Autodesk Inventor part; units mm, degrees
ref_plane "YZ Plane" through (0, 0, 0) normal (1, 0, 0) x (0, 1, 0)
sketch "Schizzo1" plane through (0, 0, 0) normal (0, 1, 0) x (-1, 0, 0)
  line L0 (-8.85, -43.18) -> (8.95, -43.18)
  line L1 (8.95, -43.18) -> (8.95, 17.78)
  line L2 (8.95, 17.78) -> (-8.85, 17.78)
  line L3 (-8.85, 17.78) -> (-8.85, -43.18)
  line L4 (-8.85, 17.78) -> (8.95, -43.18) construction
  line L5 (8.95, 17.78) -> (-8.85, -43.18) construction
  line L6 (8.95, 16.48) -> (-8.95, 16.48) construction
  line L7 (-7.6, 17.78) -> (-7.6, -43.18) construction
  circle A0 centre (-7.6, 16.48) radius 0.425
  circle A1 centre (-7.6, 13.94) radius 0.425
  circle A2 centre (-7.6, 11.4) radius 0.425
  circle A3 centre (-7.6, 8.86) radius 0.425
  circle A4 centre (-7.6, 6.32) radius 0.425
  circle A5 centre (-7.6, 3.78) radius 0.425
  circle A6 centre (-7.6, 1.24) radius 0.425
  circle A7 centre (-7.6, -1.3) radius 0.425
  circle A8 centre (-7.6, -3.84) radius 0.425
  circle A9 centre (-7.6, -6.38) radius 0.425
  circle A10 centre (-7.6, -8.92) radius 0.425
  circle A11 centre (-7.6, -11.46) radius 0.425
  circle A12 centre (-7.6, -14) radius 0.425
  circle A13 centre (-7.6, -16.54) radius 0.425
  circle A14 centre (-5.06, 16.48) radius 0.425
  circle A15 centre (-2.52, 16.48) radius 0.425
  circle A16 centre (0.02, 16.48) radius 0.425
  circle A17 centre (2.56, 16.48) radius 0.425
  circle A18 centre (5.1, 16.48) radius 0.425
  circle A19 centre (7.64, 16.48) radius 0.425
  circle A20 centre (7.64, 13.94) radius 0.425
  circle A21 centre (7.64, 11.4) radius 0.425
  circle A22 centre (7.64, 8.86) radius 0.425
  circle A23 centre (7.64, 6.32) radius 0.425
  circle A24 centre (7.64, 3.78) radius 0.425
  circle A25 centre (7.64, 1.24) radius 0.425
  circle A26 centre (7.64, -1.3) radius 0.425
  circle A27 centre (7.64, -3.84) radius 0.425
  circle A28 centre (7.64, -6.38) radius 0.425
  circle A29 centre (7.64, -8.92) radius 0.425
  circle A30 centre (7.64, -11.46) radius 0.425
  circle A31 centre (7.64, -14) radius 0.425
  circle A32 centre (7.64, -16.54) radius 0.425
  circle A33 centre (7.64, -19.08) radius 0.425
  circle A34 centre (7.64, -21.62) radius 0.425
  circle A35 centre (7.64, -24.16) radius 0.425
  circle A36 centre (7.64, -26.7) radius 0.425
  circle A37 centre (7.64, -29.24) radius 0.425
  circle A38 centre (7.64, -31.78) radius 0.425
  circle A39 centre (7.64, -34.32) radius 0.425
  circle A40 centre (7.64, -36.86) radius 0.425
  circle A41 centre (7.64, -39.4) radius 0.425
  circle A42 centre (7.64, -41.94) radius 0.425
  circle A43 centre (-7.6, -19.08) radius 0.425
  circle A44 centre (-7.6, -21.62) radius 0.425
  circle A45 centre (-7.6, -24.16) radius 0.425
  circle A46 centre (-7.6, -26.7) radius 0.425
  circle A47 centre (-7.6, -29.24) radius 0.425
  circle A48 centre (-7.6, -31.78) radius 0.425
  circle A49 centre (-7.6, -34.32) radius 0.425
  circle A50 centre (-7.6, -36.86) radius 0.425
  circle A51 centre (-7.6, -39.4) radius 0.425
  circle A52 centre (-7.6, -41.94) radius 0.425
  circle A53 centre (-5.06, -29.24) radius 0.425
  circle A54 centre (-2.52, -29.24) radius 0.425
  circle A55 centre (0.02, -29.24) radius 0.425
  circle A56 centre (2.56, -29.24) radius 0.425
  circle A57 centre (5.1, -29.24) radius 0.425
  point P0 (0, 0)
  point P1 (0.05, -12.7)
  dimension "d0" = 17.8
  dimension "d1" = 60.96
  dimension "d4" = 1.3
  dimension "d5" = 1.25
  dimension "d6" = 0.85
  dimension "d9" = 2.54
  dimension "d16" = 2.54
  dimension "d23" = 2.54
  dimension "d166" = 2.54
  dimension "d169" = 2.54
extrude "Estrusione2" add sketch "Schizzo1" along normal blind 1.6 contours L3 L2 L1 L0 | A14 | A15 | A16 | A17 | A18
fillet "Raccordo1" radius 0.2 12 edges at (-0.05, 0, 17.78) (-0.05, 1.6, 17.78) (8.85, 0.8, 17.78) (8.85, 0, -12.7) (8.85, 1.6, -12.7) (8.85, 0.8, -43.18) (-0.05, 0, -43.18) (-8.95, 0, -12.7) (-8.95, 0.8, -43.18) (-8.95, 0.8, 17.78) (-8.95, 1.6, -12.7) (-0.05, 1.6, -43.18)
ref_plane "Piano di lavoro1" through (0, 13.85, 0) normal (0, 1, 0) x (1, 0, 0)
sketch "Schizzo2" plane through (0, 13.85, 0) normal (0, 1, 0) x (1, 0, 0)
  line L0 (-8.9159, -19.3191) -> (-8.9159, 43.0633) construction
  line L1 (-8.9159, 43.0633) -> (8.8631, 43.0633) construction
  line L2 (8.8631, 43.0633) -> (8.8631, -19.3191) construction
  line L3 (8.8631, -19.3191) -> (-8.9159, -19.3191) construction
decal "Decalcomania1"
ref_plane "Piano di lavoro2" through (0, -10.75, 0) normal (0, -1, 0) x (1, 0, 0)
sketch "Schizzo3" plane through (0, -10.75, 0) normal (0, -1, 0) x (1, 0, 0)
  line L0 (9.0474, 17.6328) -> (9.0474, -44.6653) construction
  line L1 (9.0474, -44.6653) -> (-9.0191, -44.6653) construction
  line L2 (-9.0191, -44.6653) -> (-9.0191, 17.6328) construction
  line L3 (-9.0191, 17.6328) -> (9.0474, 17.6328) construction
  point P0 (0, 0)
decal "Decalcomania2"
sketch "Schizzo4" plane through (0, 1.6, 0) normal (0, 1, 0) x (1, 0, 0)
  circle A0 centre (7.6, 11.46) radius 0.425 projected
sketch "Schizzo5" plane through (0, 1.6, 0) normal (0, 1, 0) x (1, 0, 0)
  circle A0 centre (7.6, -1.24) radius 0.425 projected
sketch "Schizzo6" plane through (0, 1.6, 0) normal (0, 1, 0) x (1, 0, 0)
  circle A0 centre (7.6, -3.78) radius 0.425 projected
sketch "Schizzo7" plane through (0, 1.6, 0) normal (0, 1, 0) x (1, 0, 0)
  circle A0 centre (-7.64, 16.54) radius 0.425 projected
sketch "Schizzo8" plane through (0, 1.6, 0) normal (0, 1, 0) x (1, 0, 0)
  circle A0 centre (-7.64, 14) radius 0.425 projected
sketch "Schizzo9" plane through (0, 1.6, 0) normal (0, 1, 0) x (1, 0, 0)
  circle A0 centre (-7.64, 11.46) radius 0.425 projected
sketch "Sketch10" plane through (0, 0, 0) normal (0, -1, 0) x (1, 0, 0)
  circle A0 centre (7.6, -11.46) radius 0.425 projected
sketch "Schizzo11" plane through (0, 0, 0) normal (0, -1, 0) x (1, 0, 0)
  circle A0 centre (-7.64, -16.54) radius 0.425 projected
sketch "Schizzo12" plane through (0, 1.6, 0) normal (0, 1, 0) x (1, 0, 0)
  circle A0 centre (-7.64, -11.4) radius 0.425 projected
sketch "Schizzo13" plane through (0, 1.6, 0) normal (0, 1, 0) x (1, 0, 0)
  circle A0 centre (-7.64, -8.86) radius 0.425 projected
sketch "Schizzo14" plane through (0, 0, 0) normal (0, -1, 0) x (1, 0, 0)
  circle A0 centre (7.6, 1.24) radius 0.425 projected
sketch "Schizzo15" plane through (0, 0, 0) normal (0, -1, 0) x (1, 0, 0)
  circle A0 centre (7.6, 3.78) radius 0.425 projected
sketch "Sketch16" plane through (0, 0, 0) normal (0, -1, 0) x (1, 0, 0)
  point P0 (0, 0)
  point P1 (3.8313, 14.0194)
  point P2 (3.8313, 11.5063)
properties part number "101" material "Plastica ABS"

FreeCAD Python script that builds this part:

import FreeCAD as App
import Part
import Sketcher


def edges_at(feature, points):
    """Names of the edges that pass closest to the given points."""
    edges = feature.Shape.Edges
    near = lambda p: min(range(len(edges)), key=lambda i: edges[i].distToShape(Part.Vertex(*p))[0])
    return sorted({f"Edge{near(p) + 1}" for p in points})

doc = App.newDocument("Part")
body = doc.addObject("PartDesign::Body", "Body")

# Sketch on XZ plane
sketch1 = body.newObject("Sketcher::SketchObject", "Sketch")
sketch1.AttachmentSupport = (doc.getObject("XZ_Plane"), [""])
sketch1.MapMode = "FlatFace"
sketch1.addGeometry(Part.LineSegment(App.Vector(8.85, 17.78, 0), App.Vector(8.85, -43.18, 0)), False)
sketch1.addGeometry(Part.LineSegment(App.Vector(8.85, -43.18, 0), App.Vector(-8.95, -43.18, 0)), False)
sketch1.addGeometry(Part.LineSegment(App.Vector(-8.95, -43.18, 0), App.Vector(-8.95, 17.78, 0)), False)
sketch1.addGeometry(Part.LineSegment(App.Vector(-8.95, 17.78, 0), App.Vector(8.85, 17.78, 0)), False)
sketch1.addGeometry(Part.Circle(App.Vector(7.6, -41.94, 0), App.Vector(0, 0, 1), 0.42), False)
sketch1.addGeometry(Part.Circle(App.Vector(7.6, -39.4, 0), App.Vector(0, 0, 1), 0.42), False)
sketch1.addGeometry(Part.Circle(App.Vector(7.6, -36.86, 0), App.Vector(0, 0, 1), 0.42), False)
sketch1.addGeometry(Part.Circle(App.Vector(7.6, -34.32, 0), App.Vector(0, 0, 1), 0.42), False)
sketch1.addGeometry(Part.Circle(App.Vector(7.6, -31.78, 0), App.Vector(0, 0, 1), 0.42), False)
sketch1.addGeometry(Part.Circle(App.Vector(7.6, -29.24, 0), App.Vector(0, 0, 1), 0.42), False)
sketch1.addGeometry(Part.Circle(App.Vector(5.06, -29.24, 0), App.Vector(0, 0, 1), 0.42), False)
sketch1.addGeometry(Part.Circle(App.Vector(2.52, -29.24, 0), App.Vector(0, 0, 1), 0.42), False)
sketch1.addGeometry(Part.Circle(App.Vector(-0.02, -29.24, 0), App.Vector(0, 0, 1), 0.42), False)
sketch1.addGeometry(Part.Circle(App.Vector(7.6, -26.7, 0), App.Vector(0, 0, 1), 0.42), False)
sketch1.addGeometry(Part.Circle(App.Vector(7.6, -24.16, 0), App.Vector(0, 0, 1), 0.42), False)
sketch1.addGeometry(Part.Circle(App.Vector(7.6, -21.62, 0), App.Vector(0, 0, 1), 0.42), False)
sketch1.addGeometry(Part.Circle(App.Vector(7.6, -19.08, 0), App.Vector(0, 0, 1), 0.42), False)
sketch1.addGeometry(Part.Circle(App.Vector(7.6, -16.54, 0), App.Vector(0, 0, 1), 0.42), False)
sketch1.addGeometry(Part.Circle(App.Vector(7.6, -14, 0), App.Vector(0, 0, 1), 0.42), False)
sketch1.addGeometry(Part.Circle(App.Vector(-2.56, -29.24, 0), App.Vector(0, 0, 1), 0.42), False)
sketch1.addGeometry(Part.Circle(App.Vector(-7.64, -41.94, 0), App.Vector(0, 0, 1), 0.42), False)
sketch1.addGeometry(Part.Circle(App.Vector(-7.64, -39.4, 0), App.Vector(0, 0, 1), 0.42), False)
sketch1.addGeometry(Part.Circle(App.Vector(-7.64, -36.86, 0), App.Vector(0, 0, 1), 0.42), False)
sketch1.addGeometry(Part.Circle(App.Vector(-5.1, -29.24, 0), App.Vector(0, 0, 1), 0.42), False)
sketch1.addGeometry(Part.Circle(App.Vector(-7.64, -34.32, 0), App.Vector(0, 0, 1), 0.42), False)
sketch1.addGeometry(Part.Circle(App.Vector(-7.64, -31.78, 0), App.Vector(0, 0, 1), 0.42), False)
sketch1.addGeometry(Part.Circle(App.Vector(-7.64, -29.24, 0), App.Vector(0, 0, 1), 0.42), False)
sketch1.addGeometry(Part.Circle(App.Vector(-7.64, -26.7, 0), App.Vector(0, 0, 1), 0.42), False)
sketch1.addGeometry(Part.Circle(App.Vector(-7.64, -24.16, 0), App.Vector(0, 0, 1), 0.42), False)
sketch1.addGeometry(Part.Circle(App.Vector(-7.64, -21.62, 0), App.Vector(0, 0, 1), 0.42), False)
sketch1.addGeometry(Part.Circle(App.Vector(-7.64, -19.08, 0), App.Vector(0, 0, 1), 0.42), False)
sketch1.addGeometry(Part.Circle(App.Vector(-7.64, -16.54, 0), App.Vector(0, 0, 1), 0.42), False)
sketch1.addGeometry(Part.Circle(App.Vector(-7.64, -14, 0), App.Vector(0, 0, 1), 0.42), False)
sketch1.addGeometry(Part.Circle(App.Vector(7.6, -11.46, 0), App.Vector(0, 0, 1), 0.42), False)
sketch1.addGeometry(Part.Circle(App.Vector(7.6, -8.92, 0), App.Vector(0, 0, 1), 0.42), False)
sketch1.addGeometry(Part.Circle(App.Vector(7.6, -6.38, 0), App.Vector(0, 0, 1), 0.42), False)
sketch1.addGeometry(Part.Circle(App.Vector(7.6, -3.84, 0), App.Vector(0, 0, 1), 0.42), False)
sketch1.addGeometry(Part.Circle(App.Vector(7.6, -1.3, 0), App.Vector(0, 0, 1), 0.42), False)
sketch1.addGeometry(Part.Circle(App.Vector(7.6, 1.24, 0), App.Vector(0, 0, 1), 0.42), False)
sketch1.addGeometry(Part.Circle(App.Vector(7.6, 3.78, 0), App.Vector(0, 0, 1), 0.42), False)
sketch1.addGeometry(Part.Circle(App.Vector(7.6, 6.32, 0), App.Vector(0, 0, 1), 0.42), False)
sketch1.addGeometry(Part.Circle(App.Vector(7.6, 8.86, 0), App.Vector(0, 0, 1), 0.42), False)
sketch1.addGeometry(Part.Circle(App.Vector(7.6, 11.4, 0), App.Vector(0, 0, 1), 0.42), False)
sketch1.addGeometry(Part.Circle(App.Vector(7.6, 13.94, 0), App.Vector(0, 0, 1), 0.42), False)
sketch1.addGeometry(Part.Circle(App.Vector(7.6, 16.48, 0), App.Vector(0, 0, 1), 0.42), False)
sketch1.addGeometry(Part.Circle(App.Vector(-7.64, -11.46, 0), App.Vector(0, 0, 1), 0.42), False)
sketch1.addGeometry(Part.Circle(App.Vector(-7.64, -8.92, 0), App.Vector(0, 0, 1), 0.42), False)
sketch1.addGeometry(Part.Circle(App.Vector(-7.64, -6.38, 0), App.Vector(0, 0, 1), 0.42), False)
sketch1.addGeometry(Part.Circle(App.Vector(-7.64, -3.84, 0), App.Vector(0, 0, 1), 0.42), False)
sketch1.addGeometry(Part.Circle(App.Vector(-7.64, -1.3, 0), App.Vector(0, 0, 1), 0.42), False)
sketch1.addGeometry(Part.Circle(App.Vector(-7.64, 1.24, 0), App.Vector(0, 0, 1), 0.42), False)
sketch1.addGeometry(Part.Circle(App.Vector(-7.64, 3.78, 0), App.Vector(0, 0, 1), 0.42), False)
sketch1.addGeometry(Part.Circle(App.Vector(-7.64, 6.32, 0), App.Vector(0, 0, 1), 0.42), False)
sketch1.addGeometry(Part.Circle(App.Vector(-7.64, 8.86, 0), App.Vector(0, 0, 1), 0.42), False)
sketch1.addGeometry(Part.Circle(App.Vector(-7.64, 11.4, 0), App.Vector(0, 0, 1), 0.42), False)
sketch1.addGeometry(Part.Circle(App.Vector(-7.64, 13.94, 0), App.Vector(0, 0, 1), 0.42), False)
sketch1.addGeometry(Part.Circle(App.Vector(-7.64, 16.48, 0), App.Vector(0, 0, 1), 0.42), False)
sketch1.addConstraint(Sketcher.Constraint("Coincident", 0, 2, 1, 1))
sketch1.addConstraint(Sketcher.Constraint("Coincident", 1, 2, 2, 1))
sketch1.addConstraint(Sketcher.Constraint("Coincident", 2, 2, 3, 1))
sketch1.addConstraint(Sketcher.Constraint("Coincident", 3, 2, 0, 1))
sketch1.addConstraint(Sketcher.Constraint("Vertical", 0))
sketch1.addConstraint(Sketcher.Constraint("Horizontal", 1))
sketch1.addConstraint(Sketcher.Constraint("Vertical", 2))
sketch1.addConstraint(Sketcher.Constraint("Horizontal", 3))
sketch1.addConstraint(Sketcher.Constraint("Equal", 4, 5))
sketch1.addConstraint(Sketcher.Constraint("Equal", 5, 6))
sketch1.addConstraint(Sketcher.Constraint("Equal", 6, 7))
sketch1.addConstraint(Sketcher.Constraint("Equal", 7, 8))
sketch1.addConstraint(Sketcher.Constraint("Equal", 8, 9))
sketch1.addConstraint(Sketcher.Constraint("Equal", 9, 10))
sketch1.addConstraint(Sketcher.Constraint("Equal", 10, 11))
sketch1.addConstraint(Sketcher.Constraint("Equal", 11, 12))
sketch1.addConstraint(Sketcher.Constraint("Equal", 12, 13))
sketch1.addConstraint(Sketcher.Constraint("Equal", 13, 14))
sketch1.addConstraint(Sketcher.Constraint("Equal", 14, 15))
sketch1.addConstraint(Sketcher.Constraint("Equal", 15, 16))
sketch1.addConstraint(Sketcher.Constraint("Equal", 16, 17))
sketch1.addConstraint(Sketcher.Constraint("Equal", 17, 18))
sketch1.addConstraint(Sketcher.Constraint("Equal", 18, 19))
sketch1.addConstraint(Sketcher.Constraint("Equal", 19, 20))
sketch1.addConstraint(Sketcher.Constraint("Equal", 20, 21))
sketch1.addConstraint(Sketcher.Constraint("Equal", 21, 22))
sketch1.addConstraint(Sketcher.Constraint("Equal", 22, 23))
sketch1.addConstraint(Sketcher.Constraint("Equal", 23, 24))
sketch1.addConstraint(Sketcher.Constraint("Equal", 24, 25))
sketch1.addConstraint(Sketcher.Constraint("Equal", 25, 26))
sketch1.addConstraint(Sketcher.Constraint("Equal", 26, 27))
sketch1.addConstraint(Sketcher.Constraint("Equal", 27, 28))
sketch1.addConstraint(Sketcher.Constraint("Equal", 28, 29))
sketch1.addConstraint(Sketcher.Constraint("Equal", 29, 30))
sketch1.addConstraint(Sketcher.Constraint("Equal", 30, 31))
sketch1.addConstraint(Sketcher.Constraint("Equal", 31, 32))
sketch1.addConstraint(Sketcher.Constraint("Equal", 32, 33))
sketch1.addConstraint(Sketcher.Constraint("Equal", 33, 34))
sketch1.addConstraint(Sketcher.Constraint("Equal", 34, 35))
sketch1.addConstraint(Sketcher.Constraint("Equal", 35, 36))
sketch1.addConstraint(Sketcher.Constraint("Equal", 36, 37))
sketch1.addConstraint(Sketcher.Constraint("Equal", 37, 38))
sketch1.addConstraint(Sketcher.Constraint("Equal", 38, 39))
sketch1.addConstraint(Sketcher.Constraint("Equal", 39, 40))
sketch1.addConstraint(Sketcher.Constraint("Equal", 40, 41))
sketch1.addConstraint(Sketcher.Constraint("Equal", 41, 42))
sketch1.addConstraint(Sketcher.Constraint("Equal", 42, 43))
sketch1.addConstraint(Sketcher.Constraint("Equal", 43, 44))
sketch1.addConstraint(Sketcher.Constraint("Equal", 44, 45))
sketch1.addConstraint(Sketcher.Constraint("Equal", 45, 46))
sketch1.addConstraint(Sketcher.Constraint("Equal", 46, 47))
sketch1.addConstraint(Sketcher.Constraint("Equal", 47, 48))
sketch1.addConstraint(Sketcher.Constraint("Equal", 48, 49))
sketch1.addConstraint(Sketcher.Constraint("Equal", 49, 50))
sketch1.addConstraint(Sketcher.Constraint("Equal", 50, 51))
sketch1.addConstraint(Sketcher.Constraint("Equal", 51, 52))
sketch1.addConstraint(Sketcher.Constraint("Equal", 52, 53))
sketch1.addConstraint(Sketcher.Constraint("Equal", 53, 54))
sketch1.addConstraint(Sketcher.Constraint("Equal", 54, 55))
sketch1.addConstraint(Sketcher.Constraint("Equal", 55, 56))
sketch1.addConstraint(Sketcher.Constraint("Horizontal", 9, 3, 10, 3))
sketch1.addConstraint(Sketcher.Constraint("Horizontal", 10, 3, 11, 3))
sketch1.addConstraint(Sketcher.Constraint("Horizontal", 11, 3, 12, 3))
sketch1.addConstraint(Sketcher.Constraint("Horizontal", 12, 3, 19, 3))
sketch1.addConstraint(Sketcher.Constraint("Horizontal", 4, 3, 20, 3))
sketch1.addConstraint(Sketcher.Constraint("Horizontal", 5, 3, 21, 3))
sketch1.addConstraint(Sketcher.Constraint("Horizontal", 6, 3, 22, 3))
sketch1.addConstraint(Sketcher.Constraint("Horizontal", 19, 3, 23, 3))
sketch1.addConstraint(Sketcher.Constraint("Horizontal", 7, 3, 24, 3))
sketch1.addConstraint(Sketcher.Constraint("Horizontal", 8, 3, 25, 3))
sketch1.addConstraint(Sketcher.Constraint("Horizontal", 23, 3, 26, 3))
sketch1.addConstraint(Sketcher.Constraint("Horizontal", 13, 3, 27, 3))
sketch1.addConstraint(Sketcher.Constraint("Horizontal", 14, 3, 28, 3))
sketch1.addConstraint(Sketcher.Constraint("Horizontal", 15, 3, 29, 3))
sketch1.addConstraint(Sketcher.Constraint("Horizontal", 16, 3, 30, 3))
sketch1.addConstraint(Sketcher.Constraint("Horizontal", 17, 3, 31, 3))
sketch1.addConstraint(Sketcher.Constraint("Horizontal", 18, 3, 32, 3))
sketch1.addConstraint(Sketcher.Constraint("Horizontal", 33, 3, 45, 3))
sketch1.addConstraint(Sketcher.Constraint("Horizontal", 34, 3, 46, 3))
sketch1.addConstraint(Sketcher.Constraint("Horizontal", 35, 3, 47, 3))
sketch1.addConstraint(Sketcher.Constraint("Horizontal", 36, 3, 48, 3))
sketch1.addConstraint(Sketcher.Constraint("Horizontal", 37, 3, 49, 3))
sketch1.addConstraint(Sketcher.Constraint("Horizontal", 38, 3, 50, 3))
sketch1.addConstraint(Sketcher.Constraint("Horizontal", 39, 3, 51, 3))
sketch1.addConstraint(Sketcher.Constraint("Horizontal", 40, 3, 52, 3))
sketch1.addConstraint(Sketcher.Constraint("Horizontal", 41, 3, 53, 3))
sketch1.addConstraint(Sketcher.Constraint("Horizontal", 42, 3, 54, 3))
sketch1.addConstraint(Sketcher.Constraint("Horizontal", 43, 3, 55, 3))
sketch1.addConstraint(Sketcher.Constraint("Horizontal", 44, 3, 56, 3))
sketch1.addConstraint(Sketcher.Constraint("Vertical", 4, 3, 5, 3))
sketch1.addConstraint(Sketcher.Constraint("Vertical", 5, 3, 6, 3))
sketch1.addConstraint(Sketcher.Constraint("Vertical", 6, 3, 7, 3))
sketch1.addConstraint(Sketcher.Constraint("Vertical", 7, 3, 8, 3))
sketch1.addConstraint(Sketcher.Constraint("Vertical", 8, 3, 9, 3))
sketch1.addConstraint(Sketcher.Constraint("Vertical", 9, 3, 13, 3))
sketch1.addConstraint(Sketcher.Constraint("Vertical", 13, 3, 14, 3))
sketch1.addConstraint(Sketcher.Constraint("Vertical", 14, 3, 15, 3))
sketch1.addConstraint(Sketcher.Constraint("Vertical", 15, 3, 16, 3))
sketch1.addConstraint(Sketcher.Constraint("Vertical", 16, 3, 17, 3))
sketch1.addConstraint(Sketcher.Constraint("Vertical", 17, 3, 18, 3))
sketch1.addConstraint(Sketcher.Constraint("Vertical", 20, 3, 21, 3))
sketch1.addConstraint(Sketcher.Constraint("Vertical", 21, 3, 22, 3))
sketch1.addConstraint(Sketcher.Constraint("Vertical", 22, 3, 24, 3))
sketch1.addConstraint(Sketcher.Constraint("Vertical", 24, 3, 25, 3))
sketch1.addConstraint(Sketcher.Constraint("Vertical", 25, 3, 26, 3))
sketch1.addConstraint(Sketcher.Constraint("Vertical", 26, 3, 27, 3))
sketch1.addConstraint(Sketcher.Constraint("Vertical", 27, 3, 28, 3))
sketch1.addConstraint(Sketcher.Constraint("Vertical", 28, 3, 29, 3))
sketch1.addConstraint(Sketcher.Constraint("Vertical", 29, 3, 30, 3))
sketch1.addConstraint(Sketcher.Constraint("Vertical", 30, 3, 31, 3))
sketch1.addConstraint(Sketcher.Constraint("Vertical", 31, 3, 32, 3))
sketch1.addConstraint(Sketcher.Constraint("Vertical", 18, 3, 33, 3))
sketch1.addConstraint(Sketcher.Constraint("Vertical", 33, 3, 34, 3))
sketch1.addConstraint(Sketcher.Constraint("Vertical", 34, 3, 35, 3))
sketch1.addConstraint(Sketcher.Constraint("Vertical", 35, 3, 36, 3))
sketch1.addConstraint(Sketcher.Constraint("Vertical", 36, 3, 37, 3))
sketch1.addConstraint(Sketcher.Constraint("Vertical", 37, 3, 38, 3))
sketch1.addConstraint(Sketcher.Constraint("Vertical", 38, 3, 39, 3))
sketch1.addConstraint(Sketcher.Constraint("Vertical", 39, 3, 40, 3))
sketch1.addConstraint(Sketcher.Constraint("Vertical", 40, 3, 41, 3))
sketch1.addConstraint(Sketcher.Constraint("Vertical", 41, 3, 42, 3))
sketch1.addConstraint(Sketcher.Constraint("Vertical", 42, 3, 43, 3))
sketch1.addConstraint(Sketcher.Constraint("Vertical", 43, 3, 44, 3))
sketch1.addConstraint(Sketcher.Constraint("Vertical", 32, 3, 45, 3))
sketch1.addConstraint(Sketcher.Constraint("Vertical", 45, 3, 46, 3))
sketch1.addConstraint(Sketcher.Constraint("Vertical", 46, 3, 47, 3))
sketch1.addConstraint(Sketcher.Constraint("Vertical", 47, 3, 48, 3))
sketch1.addConstraint(Sketcher.Constraint("Vertical", 48, 3, 49, 3))
sketch1.addConstraint(Sketcher.Constraint("Vertical", 49, 3, 50, 3))
sketch1.addConstraint(Sketcher.Constraint("Vertical", 50, 3, 51, 3))
sketch1.addConstraint(Sketcher.Constraint("Vertical", 51, 3, 52, 3))
sketch1.addConstraint(Sketcher.Constraint("Vertical", 52, 3, 53, 3))
sketch1.addConstraint(Sketcher.Constraint("Vertical", 53, 3, 54, 3))
sketch1.addConstraint(Sketcher.Constraint("Vertical", 54, 3, 55, 3))
sketch1.addConstraint(Sketcher.Constraint("Vertical", 55, 3, 56, 3))
sketch1.addConstraint(Sketcher.Constraint("Diameter", 4, 0.85))
sketch1.addConstraint(Sketcher.Constraint("DistanceX", 1, 2, 1, 1, 17.8))
sketch1.addConstraint(Sketcher.Constraint("DistanceY", 0, 2, 0, 1, 60.96))
sketch1.addConstraint(Sketcher.Constraint("DistanceY", 37, 3, -1, 1, 1.3))
sketch1.addConstraint(Sketcher.Constraint("DistanceY", 56, 3, 2, 2, 1.3))
sketch1.addConstraint(Sketcher.Constraint("DistanceY", 4, 3, 5, 3, 2.54))
sketch1.addConstraint(Sketcher.Constraint("DistanceY", 5, 3, 6, 3, 2.54))
sketch1.addConstraint(Sketcher.Constraint("DistanceY", 6, 3, 7, 3, 2.54))
sketch1.addConstraint(Sketcher.Constraint("DistanceY", 7, 3, 8, 3, 2.54))
sketch1.addConstraint(Sketcher.Constraint("DistanceY", 8, 3, 9, 3, 2.54))
sketch1.addConstraint(Sketcher.Constraint("DistanceX", 10, 3, 9, 3, 2.54))
sketch1.addConstraint(Sketcher.Constraint("DistanceX", 11, 3, 10, 3, 2.54))
sketch1.addConstraint(Sketcher.Constraint("DistanceX", 12, 3, 11, 3, 2.54))
sketch1.addConstraint(Sketcher.Constraint("DistanceY", 9, 3, 13, 3, 2.54))
sketch1.addConstraint(Sketcher.Constraint("DistanceY", 13, 3, 14, 3, 2.54))
sketch1.addConstraint(Sketcher.Constraint("DistanceY", 14, 3, 15, 3, 2.54))
sketch1.addConstraint(Sketcher.Constraint("DistanceY", 15, 3, 16, 3, 2.54))
sketch1.addConstraint(Sketcher.Constraint("DistanceY", 16, 3, 17, 3, 2.54))
sketch1.addConstraint(Sketcher.Constraint("DistanceY", 17, 3, 18, 3, 2.54))
sketch1.addConstraint(Sketcher.Constraint("DistanceX", 19, 3, 12, 3, 2.54))
sketch1.addConstraint(Sketcher.Constraint("DistanceX", 23, 3, 19, 3, 2.54))
sketch1.addConstraint(Sketcher.Constraint("DistanceX", 22, 3, 23, 3, 2.54))
sketch1.addConstraint(Sketcher.Constraint("DistanceY", 18, 3, 33, 3, 2.54))
sketch1.addConstraint(Sketcher.Constraint("DistanceY", 33, 3, 34, 3, 2.54))
sketch1.addConstraint(Sketcher.Constraint("DistanceY", 34, 3, 35, 3, 2.54))
sketch1.addConstraint(Sketcher.Constraint("DistanceY", 35, 3, 36, 3, 2.54))
sketch1.addConstraint(Sketcher.Constraint("DistanceY", 36, 3, 37, 3, 2.54))
sketch1.addConstraint(Sketcher.Constraint("DistanceY", 37, 3, 38, 3, 2.54))
sketch1.addConstraint(Sketcher.Constraint("DistanceY", 38, 3, 39, 3, 2.54))
sketch1.addConstraint(Sketcher.Constraint("DistanceY", 39, 3, 40, 3, 2.54))
sketch1.addConstraint(Sketcher.Constraint("DistanceY", 40, 3, 41, 3, 2.54))
sketch1.addConstraint(Sketcher.Constraint("DistanceY", 41, 3, 42, 3, 2.54))
sketch1.addConstraint(Sketcher.Constraint("DistanceY", 42, 3, 43, 3, 2.54))
sketch1.addConstraint(Sketcher.Constraint("DistanceY", 43, 3, 44, 3, 2.54))
sketch1.addConstraint(Sketcher.Constraint("DistanceX", 4, 3, 0, 2, 1.25))
sketch1.addConstraint(Sketcher.Constraint("DistanceX", -1, 1, 4, 3, 7.6))
pad1 = body.newObject("PartDesign::Pad", "Pad")
pad1.Profile = sketch1
pad1.Length = 1.6
pad1.Reversed = True
doc.recompute()

fillet = body.newObject("PartDesign::Fillet", "Fillet")
fillet.Base = (pad1, edges_at(pad1, [
    (-0.05, 0, 17.78),
    (-0.05, 1.6, 17.78),
    (8.85, 0.8, 17.78),
    (8.85, 0, -12.7),
    (8.85, 1.6, -12.7),
    (8.85, 0.8, -43.18),
    (-0.05, 0, -43.18),
    (-8.95, 0, -12.7),
    (-8.95, 0.8, -43.18),
    (-8.95, 0.8, 17.78),
    (-8.95, 1.6, -12.7),
    (-0.05, 1.6, -43.18),
]))
fillet.Radius = 0.2

doc.recompute()
